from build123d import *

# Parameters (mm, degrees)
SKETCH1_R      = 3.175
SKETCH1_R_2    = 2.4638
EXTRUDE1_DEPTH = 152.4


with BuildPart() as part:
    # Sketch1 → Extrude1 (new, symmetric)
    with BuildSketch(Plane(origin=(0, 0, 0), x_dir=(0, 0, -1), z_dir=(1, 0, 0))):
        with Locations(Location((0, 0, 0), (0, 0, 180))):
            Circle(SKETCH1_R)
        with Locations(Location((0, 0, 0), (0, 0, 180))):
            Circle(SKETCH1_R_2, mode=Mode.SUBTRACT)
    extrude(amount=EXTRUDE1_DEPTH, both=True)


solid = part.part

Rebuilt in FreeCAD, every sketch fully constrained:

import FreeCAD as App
import Part
import Sketcher
Q = App.Units.Quantity

doc = App.newDocument("Part")
params = doc.addObject("Spreadsheet::Sheet", "Params")
for row, (alias, value) in enumerate([
    ("sketch1_diameter", "0.25 in"),
    ("sketch1_diameter2", "0.194 in"),
    ("pad1_length", "12 in"),
], start=1):
    params.set(f"A{row}", alias)
    params.set(f"B{row}", "=" + value)
    params.setAlias(f"B{row}", alias)

body = doc.addObject("PartDesign::Body", "Body")

sketch1 = body.newObject("Sketcher::SketchObject", "Sketch")
sketch1.AttachmentSupport = (doc.getObject("YZ_Plane"), [""])
sketch1.MapMode = "FlatFace"
sketch1.addGeometry([
    Part.Circle(App.Vector(0, 0, 0), App.Vector(0, 0, 1), 3.2),
    Part.Circle(App.Vector(0, 0, 0), App.Vector(0, 0, 1), 2.5),
], False)
sketch1.addConstraint([
    Sketcher.Constraint("Coincident", 0, 3, -1, 1),
    Sketcher.Constraint("Coincident", 1, 3, -1, 1),
    Sketcher.Constraint("Diameter", 0, Q("0.25 in")),
    Sketcher.Constraint("Diameter", 1, Q("0.194 in")),
])
sketch1.setExpression("Constraints[2]", "Params.sketch1_diameter")
sketch1.setExpression("Constraints[3]", "Params.sketch1_diameter2")
pad1 = body.newObject("PartDesign::Pad", "Pad")
pad1.Profile = sketch1
pad1.setExpression("Length", "Params.pad1_length")
pad1.Midplane = True

doc.recompute()
